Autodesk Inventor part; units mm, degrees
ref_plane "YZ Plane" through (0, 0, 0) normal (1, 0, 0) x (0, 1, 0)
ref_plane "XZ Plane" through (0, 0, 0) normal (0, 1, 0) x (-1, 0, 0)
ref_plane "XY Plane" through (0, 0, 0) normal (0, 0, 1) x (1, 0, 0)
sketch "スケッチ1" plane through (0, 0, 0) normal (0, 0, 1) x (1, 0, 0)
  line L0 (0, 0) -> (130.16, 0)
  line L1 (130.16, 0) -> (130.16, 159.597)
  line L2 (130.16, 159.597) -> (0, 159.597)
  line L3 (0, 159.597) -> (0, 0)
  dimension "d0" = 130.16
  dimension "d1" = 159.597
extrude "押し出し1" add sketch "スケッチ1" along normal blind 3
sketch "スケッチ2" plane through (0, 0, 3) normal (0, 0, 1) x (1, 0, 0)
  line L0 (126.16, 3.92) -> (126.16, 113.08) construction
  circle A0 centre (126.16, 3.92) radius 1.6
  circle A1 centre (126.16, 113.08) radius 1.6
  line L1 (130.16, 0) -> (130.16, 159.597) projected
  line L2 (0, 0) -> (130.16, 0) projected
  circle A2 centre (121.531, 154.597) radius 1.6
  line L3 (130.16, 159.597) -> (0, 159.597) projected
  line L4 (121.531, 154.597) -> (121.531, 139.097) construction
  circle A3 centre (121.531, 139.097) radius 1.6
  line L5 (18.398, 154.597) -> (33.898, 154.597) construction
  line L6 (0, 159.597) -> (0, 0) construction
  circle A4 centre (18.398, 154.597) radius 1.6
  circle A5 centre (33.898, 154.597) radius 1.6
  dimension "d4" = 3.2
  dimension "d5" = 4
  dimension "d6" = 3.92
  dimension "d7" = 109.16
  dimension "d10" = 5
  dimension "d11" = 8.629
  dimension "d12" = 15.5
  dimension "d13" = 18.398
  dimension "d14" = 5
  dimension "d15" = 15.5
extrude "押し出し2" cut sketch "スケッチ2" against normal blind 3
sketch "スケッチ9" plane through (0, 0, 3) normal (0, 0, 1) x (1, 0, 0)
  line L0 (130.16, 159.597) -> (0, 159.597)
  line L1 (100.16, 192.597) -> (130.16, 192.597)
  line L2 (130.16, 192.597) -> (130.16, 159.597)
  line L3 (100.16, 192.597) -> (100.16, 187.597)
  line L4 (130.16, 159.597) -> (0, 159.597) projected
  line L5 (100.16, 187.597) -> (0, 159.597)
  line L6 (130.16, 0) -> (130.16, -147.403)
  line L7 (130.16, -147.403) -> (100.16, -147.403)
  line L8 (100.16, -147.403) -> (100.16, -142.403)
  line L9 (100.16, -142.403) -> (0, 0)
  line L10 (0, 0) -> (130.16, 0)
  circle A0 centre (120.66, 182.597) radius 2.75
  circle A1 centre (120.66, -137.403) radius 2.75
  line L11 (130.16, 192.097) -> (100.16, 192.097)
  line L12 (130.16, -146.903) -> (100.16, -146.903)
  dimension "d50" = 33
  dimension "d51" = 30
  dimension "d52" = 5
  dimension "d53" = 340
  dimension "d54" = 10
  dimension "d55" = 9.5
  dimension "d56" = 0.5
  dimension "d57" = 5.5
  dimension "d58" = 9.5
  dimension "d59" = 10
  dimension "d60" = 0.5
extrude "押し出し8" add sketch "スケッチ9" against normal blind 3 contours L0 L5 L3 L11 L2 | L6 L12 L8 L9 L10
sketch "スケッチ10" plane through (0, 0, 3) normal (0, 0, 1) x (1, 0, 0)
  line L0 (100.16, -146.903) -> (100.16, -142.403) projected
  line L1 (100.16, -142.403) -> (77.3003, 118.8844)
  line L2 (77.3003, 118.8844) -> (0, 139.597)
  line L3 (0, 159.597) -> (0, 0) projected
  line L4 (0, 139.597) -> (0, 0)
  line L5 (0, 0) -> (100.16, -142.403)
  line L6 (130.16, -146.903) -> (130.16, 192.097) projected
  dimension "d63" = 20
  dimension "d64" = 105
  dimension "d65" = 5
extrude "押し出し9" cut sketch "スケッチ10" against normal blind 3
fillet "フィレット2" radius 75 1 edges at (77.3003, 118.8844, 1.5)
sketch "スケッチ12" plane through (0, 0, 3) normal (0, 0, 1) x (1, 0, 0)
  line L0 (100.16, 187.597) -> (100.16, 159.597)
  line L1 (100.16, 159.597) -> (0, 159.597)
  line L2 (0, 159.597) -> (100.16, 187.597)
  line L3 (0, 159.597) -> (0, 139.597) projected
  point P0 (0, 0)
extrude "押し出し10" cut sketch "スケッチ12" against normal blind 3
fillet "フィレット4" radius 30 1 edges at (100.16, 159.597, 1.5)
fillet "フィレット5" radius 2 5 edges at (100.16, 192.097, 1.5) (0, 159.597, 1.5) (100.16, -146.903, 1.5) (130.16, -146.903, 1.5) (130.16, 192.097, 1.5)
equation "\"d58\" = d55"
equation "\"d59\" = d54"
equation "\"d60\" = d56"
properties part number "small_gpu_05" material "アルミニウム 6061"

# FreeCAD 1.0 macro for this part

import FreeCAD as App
import Part
import Sketcher

V = App.Vector
Q = App.Units.Quantity


def edges_at(feature, points):
    """Names of the edges that pass closest to the given points."""
    edges = feature.Shape.Edges
    near = lambda p: min(range(len(edges)), key=lambda i: edges[i].distToShape(Part.Vertex(*p))[0])
    return sorted({f"Edge{near(p) + 1}" for p in points})


def add_polygon(sketch, points):
    """Adds a closed chain of lines whose ends are joined by coincident constraints."""
    first, n = sketch.GeometryCount, len(points)
    for a, b in zip(points, points[1:] + points[:1]):
        sketch.addGeometry(Part.LineSegment(App.Vector(*a, 0), App.Vector(*b, 0)), False)
    for i in range(n):
        sketch.addConstraint(Sketcher.Constraint("Coincident", first + i, 2, first + (i + 1) % n, 1))

doc = App.newDocument("Part")
body = doc.addObject("PartDesign::Body", "Body")

sketch1 = body.newObject("Sketcher::SketchObject", "Sketch")
sketch1.AttachmentSupport = (doc.getObject("XY_Plane"), [""])
sketch1.MapMode = "FlatFace"
add_polygon(sketch1, [(0, 159.597), (0, 0), (130.16, 0), (130.16, 159.597)])
sketch1.addConstraint([
    Sketcher.Constraint("Vertical", 0),
    Sketcher.Constraint("Horizontal", 1),
    Sketcher.Constraint("Vertical", 2),
    Sketcher.Constraint("Horizontal", 3),
    Sketcher.Constraint("Coincident", 0, 2, -1, 1),
    Sketcher.Constraint("DistanceX", 1, 1, 1, 2, Q("130.16 mm")),
    Sketcher.Constraint("DistanceY", 0, 2, 0, 1, Q("159.597 mm")),
])
pad1 = body.newObject("PartDesign::Pad", "Pad")
pad1.Profile = sketch1
pad1.Length = 3

sketch2 = body.newObject("Sketcher::SketchObject", "Sketch001")
sketch2.AttachmentSupport = (doc.getObject("XY_Plane"), [""])
sketch2.MapMode = "FlatFace"
sketch2.AttachmentOffset = App.Placement(V(0, 0, 3), App.Rotation())
sketch2.addGeometry([
    Part.Circle(V(126.16, 3.92, 0), V(0, 0, 1), 1.6),
    Part.Circle(V(126.16, 113.08, 0), V(0, 0, 1), 1.6),
    Part.Circle(V(121.531, 154.597, 0), V(0, 0, 1), 1.6),
    Part.Circle(V(121.531, 139.097, 0), V(0, 0, 1), 1.6),
    Part.Circle(V(18.398, 154.597, 0), V(0, 0, 1), 1.6),
    Part.Circle(V(33.898, 154.597, 0), V(0, 0, 1), 1.6),
], False)
sketch2.addConstraint([
    Sketcher.Constraint("Equal", 0, 1),
    Sketcher.Constraint("Equal", 1, 2),
    Sketcher.Constraint("Equal", 2, 3),
    Sketcher.Constraint("Equal", 3, 4),
    Sketcher.Constraint("Equal", 4, 5),
    Sketcher.Constraint("Horizontal", 2, 3, 4, 3),
    Sketcher.Constraint("Horizontal", 4, 3, 5, 3),
    Sketcher.Constraint("Vertical", 0, 3, 1, 3),
    Sketcher.Constraint("Vertical", 2, 3, 3, 3),
    Sketcher.Constraint("Diameter", 0, Q("3.2 mm")),
    Sketcher.Constraint("DistanceY", 3, 3, 2, 3, Q("15.5 mm")),
    Sketcher.Constraint("DistanceX", 4, 3, 5, 3, Q("15.5 mm")),
    Sketcher.Constraint("DistanceY", -1, 1, 0, 3, Q("3.92 mm")),
    Sketcher.Constraint("DistanceY", 0, 3, 1, 3, Q("109.16 mm")),
    Sketcher.Constraint("DistanceX", -1, 1, 4, 3, Q("18.398 mm")),
    Sketcher.Constraint("DistanceX", -1, 1, 0, 3, Q("126.16 mm")),
    Sketcher.Constraint("DistanceX", -1, 1, 2, 3, Q("121.531 mm")),
    Sketcher.Constraint("DistanceY", -1, 1, 2, 3, Q("154.597 mm")),
])
pocket1 = body.newObject("PartDesign::Pocket", "Pocket")
pocket1.Profile = sketch2
pocket1.Length = 3

sketch3 = body.newObject("Sketcher::SketchObject", "Sketch002")
sketch3.AttachmentSupport = (doc.getObject("XY_Plane"), [""])
sketch3.MapMode = "FlatFace"
sketch3.AttachmentOffset = App.Placement(V(0, 0, 3), App.Rotation())
add_polygon(sketch3, [(0, 159.597), (130.16, 159.597), (130.16, 192.097), (100.16, 192.097), (100.16, 187.597)])
sketch3.addGeometry(Part.Circle(V(120.66, 182.597, 0), V(0, 0, 1), 2.75), False)
add_polygon(sketch3, [(130.16, -146.903), (130.16, 0), (0, 0), (100.16, -142.403), (100.16, -146.903)])
sketch3.addGeometry(Part.Circle(V(120.66, -137.403, 0), V(0, 0, 1), 2.75), False)
sketch3.addConstraint([
    Sketcher.Constraint("Horizontal", 0),
    Sketcher.Constraint("Vertical", 1),
    Sketcher.Constraint("Horizontal", 2),
    Sketcher.Constraint("Vertical", 3),
    Sketcher.Constraint("Vertical", 6),
    Sketcher.Constraint("Horizontal", 7),
    Sketcher.Constraint("Vertical", 9),
    Sketcher.Constraint("Horizontal", 10),
    Sketcher.Constraint("Coincident", 7, 2, -1, 1),
    Sketcher.Constraint("Equal", 5, 11),
    Sketcher.Constraint("PointOnObject", 4, 2, -2),
    Sketcher.Constraint("Vertical", 5, 3, 11, 3),
    Sketcher.Constraint("Vertical", 1, 2, 6, 2),
    Sketcher.Constraint("Vertical", 3, 2, 8, 2),
    Sketcher.Constraint("Equal", 3, 9),
    Sketcher.Constraint("Diameter", 5, Q("5.5 mm")),
    Sketcher.Constraint("DistanceX", 2, 2, 2, 1, Q("30 mm")),
    Sketcher.Constraint("DistanceY", 5, 3, 3, 2, Q("5 mm")),
    Sketcher.Constraint("DistanceY", 8, 2, 11, 3, Q("5 mm")),
    Sketcher.Constraint("DistanceX", 5, 3, 0, 2, Q("9.5 mm")),
    Sketcher.Constraint("DistanceY", 5, 3, 1, 2, Q("9.5 mm")),
    Sketcher.Constraint("DistanceY", 1, 1, 1, 2, Q("32.5 mm")),
    Sketcher.Constraint("DistanceY", 11, 3, 5, 3, Q("320 mm")),
    Sketcher.Constraint("DistanceX", 0, 1, 0, 2, Q("130.16 mm")),
    Sketcher.Constraint("Angle", 8, Q("-54.8791 deg")),
])
pad2 = body.newObject("PartDesign::Pad", "Pad001")
pad2.Profile = sketch3
pad2.Length = 3
pad2.Reversed = True

sketch4 = body.newObject("Sketcher::SketchObject", "Sketch003")
sketch4.AttachmentSupport = (doc.getObject("XY_Plane"), [""])
sketch4.MapMode = "FlatFace"
sketch4.AttachmentOffset = App.Placement(V(0, 0, 3), App.Rotation())
add_polygon(sketch4, [(0, 0), (100.16, -142.403), (77.3003, 118.8844), (0, 139.597)])
sketch4.addConstraint([
    Sketcher.Constraint("Vertical", 3),
    Sketcher.Constraint("Coincident", 3, 2, -1, 1),
    Sketcher.Constraint("Angle", 1, Q("95 deg")),
    Sketcher.Constraint("Angle", 2, Q("165 deg")),
    Sketcher.Constraint("DistanceY", 0, 2, 2, 2, Q("282 mm")),
    Sketcher.Constraint("Angle", 0, Q("-54.8791 deg")),
    Sketcher.Constraint("DistanceY", 3, 2, 3, 1, Q("139.597 mm")),
])
pocket2 = body.newObject("PartDesign::Pocket", "Pocket001")
pocket2.Profile = sketch4
pocket2.Length = 3
doc.recompute()

fillet = body.newObject("PartDesign::Fillet", "Fillet")
fillet.Base = (pocket2, edges_at(pocket2, [(77.3, 118.884, 1.5)]))
fillet.Radius = 75

sketch5 = body.newObject("Sketcher::SketchObject", "Sketch004")
sketch5.AttachmentSupport = (doc.getObject("XY_Plane"), [""])
sketch5.MapMode = "FlatFace"
sketch5.AttachmentOffset = App.Placement(V(0, 0, 3), App.Rotation())
add_polygon(sketch5, [(100.16, 159.597), (100.16, 187.597), (0, 159.597)])
sketch5.addConstraint([
    Sketcher.Constraint("Vertical", 0),
    Sketcher.Constraint("Horizontal", 2),
    Sketcher.Constraint("PointOnObject", 1, 2, -2),
    Sketcher.Constraint("DistanceY", 0, 1, 0, 2, Q("28 mm")),
    Sketcher.Constraint("DistanceX", 2, 1, 2, 2, Q("100.16 mm")),
    Sketcher.Constraint("DistanceY", -1, 1, 0, 2, Q("187.597 mm")),
])
pocket3 = body.newObject("PartDesign::Pocket", "Pocket002")
pocket3.Profile = sketch5
pocket3.Length = 3
doc.recompute()

fillet2 = body.newObject("PartDesign::Fillet", "Fillet001")
fillet2.Base = (pocket3, edges_at(pocket3, [(100.16, 159.597, 1.5)]))
fillet2.Radius = 30
doc.recompute()

fillet3 = body.newObject("PartDesign::Fillet", "Fillet002")
fillet3.Base = (fillet2, edges_at(fillet2, [
    (100.16, 192.097, 1.5),
    (0, 159.597, 1.5),
    (100.16, -146.903, 1.5),
    (130.16, -146.903, 1.5),
    (130.16, 192.097, 1.5),
]))
fillet3.Radius = 2

doc.recompute()
